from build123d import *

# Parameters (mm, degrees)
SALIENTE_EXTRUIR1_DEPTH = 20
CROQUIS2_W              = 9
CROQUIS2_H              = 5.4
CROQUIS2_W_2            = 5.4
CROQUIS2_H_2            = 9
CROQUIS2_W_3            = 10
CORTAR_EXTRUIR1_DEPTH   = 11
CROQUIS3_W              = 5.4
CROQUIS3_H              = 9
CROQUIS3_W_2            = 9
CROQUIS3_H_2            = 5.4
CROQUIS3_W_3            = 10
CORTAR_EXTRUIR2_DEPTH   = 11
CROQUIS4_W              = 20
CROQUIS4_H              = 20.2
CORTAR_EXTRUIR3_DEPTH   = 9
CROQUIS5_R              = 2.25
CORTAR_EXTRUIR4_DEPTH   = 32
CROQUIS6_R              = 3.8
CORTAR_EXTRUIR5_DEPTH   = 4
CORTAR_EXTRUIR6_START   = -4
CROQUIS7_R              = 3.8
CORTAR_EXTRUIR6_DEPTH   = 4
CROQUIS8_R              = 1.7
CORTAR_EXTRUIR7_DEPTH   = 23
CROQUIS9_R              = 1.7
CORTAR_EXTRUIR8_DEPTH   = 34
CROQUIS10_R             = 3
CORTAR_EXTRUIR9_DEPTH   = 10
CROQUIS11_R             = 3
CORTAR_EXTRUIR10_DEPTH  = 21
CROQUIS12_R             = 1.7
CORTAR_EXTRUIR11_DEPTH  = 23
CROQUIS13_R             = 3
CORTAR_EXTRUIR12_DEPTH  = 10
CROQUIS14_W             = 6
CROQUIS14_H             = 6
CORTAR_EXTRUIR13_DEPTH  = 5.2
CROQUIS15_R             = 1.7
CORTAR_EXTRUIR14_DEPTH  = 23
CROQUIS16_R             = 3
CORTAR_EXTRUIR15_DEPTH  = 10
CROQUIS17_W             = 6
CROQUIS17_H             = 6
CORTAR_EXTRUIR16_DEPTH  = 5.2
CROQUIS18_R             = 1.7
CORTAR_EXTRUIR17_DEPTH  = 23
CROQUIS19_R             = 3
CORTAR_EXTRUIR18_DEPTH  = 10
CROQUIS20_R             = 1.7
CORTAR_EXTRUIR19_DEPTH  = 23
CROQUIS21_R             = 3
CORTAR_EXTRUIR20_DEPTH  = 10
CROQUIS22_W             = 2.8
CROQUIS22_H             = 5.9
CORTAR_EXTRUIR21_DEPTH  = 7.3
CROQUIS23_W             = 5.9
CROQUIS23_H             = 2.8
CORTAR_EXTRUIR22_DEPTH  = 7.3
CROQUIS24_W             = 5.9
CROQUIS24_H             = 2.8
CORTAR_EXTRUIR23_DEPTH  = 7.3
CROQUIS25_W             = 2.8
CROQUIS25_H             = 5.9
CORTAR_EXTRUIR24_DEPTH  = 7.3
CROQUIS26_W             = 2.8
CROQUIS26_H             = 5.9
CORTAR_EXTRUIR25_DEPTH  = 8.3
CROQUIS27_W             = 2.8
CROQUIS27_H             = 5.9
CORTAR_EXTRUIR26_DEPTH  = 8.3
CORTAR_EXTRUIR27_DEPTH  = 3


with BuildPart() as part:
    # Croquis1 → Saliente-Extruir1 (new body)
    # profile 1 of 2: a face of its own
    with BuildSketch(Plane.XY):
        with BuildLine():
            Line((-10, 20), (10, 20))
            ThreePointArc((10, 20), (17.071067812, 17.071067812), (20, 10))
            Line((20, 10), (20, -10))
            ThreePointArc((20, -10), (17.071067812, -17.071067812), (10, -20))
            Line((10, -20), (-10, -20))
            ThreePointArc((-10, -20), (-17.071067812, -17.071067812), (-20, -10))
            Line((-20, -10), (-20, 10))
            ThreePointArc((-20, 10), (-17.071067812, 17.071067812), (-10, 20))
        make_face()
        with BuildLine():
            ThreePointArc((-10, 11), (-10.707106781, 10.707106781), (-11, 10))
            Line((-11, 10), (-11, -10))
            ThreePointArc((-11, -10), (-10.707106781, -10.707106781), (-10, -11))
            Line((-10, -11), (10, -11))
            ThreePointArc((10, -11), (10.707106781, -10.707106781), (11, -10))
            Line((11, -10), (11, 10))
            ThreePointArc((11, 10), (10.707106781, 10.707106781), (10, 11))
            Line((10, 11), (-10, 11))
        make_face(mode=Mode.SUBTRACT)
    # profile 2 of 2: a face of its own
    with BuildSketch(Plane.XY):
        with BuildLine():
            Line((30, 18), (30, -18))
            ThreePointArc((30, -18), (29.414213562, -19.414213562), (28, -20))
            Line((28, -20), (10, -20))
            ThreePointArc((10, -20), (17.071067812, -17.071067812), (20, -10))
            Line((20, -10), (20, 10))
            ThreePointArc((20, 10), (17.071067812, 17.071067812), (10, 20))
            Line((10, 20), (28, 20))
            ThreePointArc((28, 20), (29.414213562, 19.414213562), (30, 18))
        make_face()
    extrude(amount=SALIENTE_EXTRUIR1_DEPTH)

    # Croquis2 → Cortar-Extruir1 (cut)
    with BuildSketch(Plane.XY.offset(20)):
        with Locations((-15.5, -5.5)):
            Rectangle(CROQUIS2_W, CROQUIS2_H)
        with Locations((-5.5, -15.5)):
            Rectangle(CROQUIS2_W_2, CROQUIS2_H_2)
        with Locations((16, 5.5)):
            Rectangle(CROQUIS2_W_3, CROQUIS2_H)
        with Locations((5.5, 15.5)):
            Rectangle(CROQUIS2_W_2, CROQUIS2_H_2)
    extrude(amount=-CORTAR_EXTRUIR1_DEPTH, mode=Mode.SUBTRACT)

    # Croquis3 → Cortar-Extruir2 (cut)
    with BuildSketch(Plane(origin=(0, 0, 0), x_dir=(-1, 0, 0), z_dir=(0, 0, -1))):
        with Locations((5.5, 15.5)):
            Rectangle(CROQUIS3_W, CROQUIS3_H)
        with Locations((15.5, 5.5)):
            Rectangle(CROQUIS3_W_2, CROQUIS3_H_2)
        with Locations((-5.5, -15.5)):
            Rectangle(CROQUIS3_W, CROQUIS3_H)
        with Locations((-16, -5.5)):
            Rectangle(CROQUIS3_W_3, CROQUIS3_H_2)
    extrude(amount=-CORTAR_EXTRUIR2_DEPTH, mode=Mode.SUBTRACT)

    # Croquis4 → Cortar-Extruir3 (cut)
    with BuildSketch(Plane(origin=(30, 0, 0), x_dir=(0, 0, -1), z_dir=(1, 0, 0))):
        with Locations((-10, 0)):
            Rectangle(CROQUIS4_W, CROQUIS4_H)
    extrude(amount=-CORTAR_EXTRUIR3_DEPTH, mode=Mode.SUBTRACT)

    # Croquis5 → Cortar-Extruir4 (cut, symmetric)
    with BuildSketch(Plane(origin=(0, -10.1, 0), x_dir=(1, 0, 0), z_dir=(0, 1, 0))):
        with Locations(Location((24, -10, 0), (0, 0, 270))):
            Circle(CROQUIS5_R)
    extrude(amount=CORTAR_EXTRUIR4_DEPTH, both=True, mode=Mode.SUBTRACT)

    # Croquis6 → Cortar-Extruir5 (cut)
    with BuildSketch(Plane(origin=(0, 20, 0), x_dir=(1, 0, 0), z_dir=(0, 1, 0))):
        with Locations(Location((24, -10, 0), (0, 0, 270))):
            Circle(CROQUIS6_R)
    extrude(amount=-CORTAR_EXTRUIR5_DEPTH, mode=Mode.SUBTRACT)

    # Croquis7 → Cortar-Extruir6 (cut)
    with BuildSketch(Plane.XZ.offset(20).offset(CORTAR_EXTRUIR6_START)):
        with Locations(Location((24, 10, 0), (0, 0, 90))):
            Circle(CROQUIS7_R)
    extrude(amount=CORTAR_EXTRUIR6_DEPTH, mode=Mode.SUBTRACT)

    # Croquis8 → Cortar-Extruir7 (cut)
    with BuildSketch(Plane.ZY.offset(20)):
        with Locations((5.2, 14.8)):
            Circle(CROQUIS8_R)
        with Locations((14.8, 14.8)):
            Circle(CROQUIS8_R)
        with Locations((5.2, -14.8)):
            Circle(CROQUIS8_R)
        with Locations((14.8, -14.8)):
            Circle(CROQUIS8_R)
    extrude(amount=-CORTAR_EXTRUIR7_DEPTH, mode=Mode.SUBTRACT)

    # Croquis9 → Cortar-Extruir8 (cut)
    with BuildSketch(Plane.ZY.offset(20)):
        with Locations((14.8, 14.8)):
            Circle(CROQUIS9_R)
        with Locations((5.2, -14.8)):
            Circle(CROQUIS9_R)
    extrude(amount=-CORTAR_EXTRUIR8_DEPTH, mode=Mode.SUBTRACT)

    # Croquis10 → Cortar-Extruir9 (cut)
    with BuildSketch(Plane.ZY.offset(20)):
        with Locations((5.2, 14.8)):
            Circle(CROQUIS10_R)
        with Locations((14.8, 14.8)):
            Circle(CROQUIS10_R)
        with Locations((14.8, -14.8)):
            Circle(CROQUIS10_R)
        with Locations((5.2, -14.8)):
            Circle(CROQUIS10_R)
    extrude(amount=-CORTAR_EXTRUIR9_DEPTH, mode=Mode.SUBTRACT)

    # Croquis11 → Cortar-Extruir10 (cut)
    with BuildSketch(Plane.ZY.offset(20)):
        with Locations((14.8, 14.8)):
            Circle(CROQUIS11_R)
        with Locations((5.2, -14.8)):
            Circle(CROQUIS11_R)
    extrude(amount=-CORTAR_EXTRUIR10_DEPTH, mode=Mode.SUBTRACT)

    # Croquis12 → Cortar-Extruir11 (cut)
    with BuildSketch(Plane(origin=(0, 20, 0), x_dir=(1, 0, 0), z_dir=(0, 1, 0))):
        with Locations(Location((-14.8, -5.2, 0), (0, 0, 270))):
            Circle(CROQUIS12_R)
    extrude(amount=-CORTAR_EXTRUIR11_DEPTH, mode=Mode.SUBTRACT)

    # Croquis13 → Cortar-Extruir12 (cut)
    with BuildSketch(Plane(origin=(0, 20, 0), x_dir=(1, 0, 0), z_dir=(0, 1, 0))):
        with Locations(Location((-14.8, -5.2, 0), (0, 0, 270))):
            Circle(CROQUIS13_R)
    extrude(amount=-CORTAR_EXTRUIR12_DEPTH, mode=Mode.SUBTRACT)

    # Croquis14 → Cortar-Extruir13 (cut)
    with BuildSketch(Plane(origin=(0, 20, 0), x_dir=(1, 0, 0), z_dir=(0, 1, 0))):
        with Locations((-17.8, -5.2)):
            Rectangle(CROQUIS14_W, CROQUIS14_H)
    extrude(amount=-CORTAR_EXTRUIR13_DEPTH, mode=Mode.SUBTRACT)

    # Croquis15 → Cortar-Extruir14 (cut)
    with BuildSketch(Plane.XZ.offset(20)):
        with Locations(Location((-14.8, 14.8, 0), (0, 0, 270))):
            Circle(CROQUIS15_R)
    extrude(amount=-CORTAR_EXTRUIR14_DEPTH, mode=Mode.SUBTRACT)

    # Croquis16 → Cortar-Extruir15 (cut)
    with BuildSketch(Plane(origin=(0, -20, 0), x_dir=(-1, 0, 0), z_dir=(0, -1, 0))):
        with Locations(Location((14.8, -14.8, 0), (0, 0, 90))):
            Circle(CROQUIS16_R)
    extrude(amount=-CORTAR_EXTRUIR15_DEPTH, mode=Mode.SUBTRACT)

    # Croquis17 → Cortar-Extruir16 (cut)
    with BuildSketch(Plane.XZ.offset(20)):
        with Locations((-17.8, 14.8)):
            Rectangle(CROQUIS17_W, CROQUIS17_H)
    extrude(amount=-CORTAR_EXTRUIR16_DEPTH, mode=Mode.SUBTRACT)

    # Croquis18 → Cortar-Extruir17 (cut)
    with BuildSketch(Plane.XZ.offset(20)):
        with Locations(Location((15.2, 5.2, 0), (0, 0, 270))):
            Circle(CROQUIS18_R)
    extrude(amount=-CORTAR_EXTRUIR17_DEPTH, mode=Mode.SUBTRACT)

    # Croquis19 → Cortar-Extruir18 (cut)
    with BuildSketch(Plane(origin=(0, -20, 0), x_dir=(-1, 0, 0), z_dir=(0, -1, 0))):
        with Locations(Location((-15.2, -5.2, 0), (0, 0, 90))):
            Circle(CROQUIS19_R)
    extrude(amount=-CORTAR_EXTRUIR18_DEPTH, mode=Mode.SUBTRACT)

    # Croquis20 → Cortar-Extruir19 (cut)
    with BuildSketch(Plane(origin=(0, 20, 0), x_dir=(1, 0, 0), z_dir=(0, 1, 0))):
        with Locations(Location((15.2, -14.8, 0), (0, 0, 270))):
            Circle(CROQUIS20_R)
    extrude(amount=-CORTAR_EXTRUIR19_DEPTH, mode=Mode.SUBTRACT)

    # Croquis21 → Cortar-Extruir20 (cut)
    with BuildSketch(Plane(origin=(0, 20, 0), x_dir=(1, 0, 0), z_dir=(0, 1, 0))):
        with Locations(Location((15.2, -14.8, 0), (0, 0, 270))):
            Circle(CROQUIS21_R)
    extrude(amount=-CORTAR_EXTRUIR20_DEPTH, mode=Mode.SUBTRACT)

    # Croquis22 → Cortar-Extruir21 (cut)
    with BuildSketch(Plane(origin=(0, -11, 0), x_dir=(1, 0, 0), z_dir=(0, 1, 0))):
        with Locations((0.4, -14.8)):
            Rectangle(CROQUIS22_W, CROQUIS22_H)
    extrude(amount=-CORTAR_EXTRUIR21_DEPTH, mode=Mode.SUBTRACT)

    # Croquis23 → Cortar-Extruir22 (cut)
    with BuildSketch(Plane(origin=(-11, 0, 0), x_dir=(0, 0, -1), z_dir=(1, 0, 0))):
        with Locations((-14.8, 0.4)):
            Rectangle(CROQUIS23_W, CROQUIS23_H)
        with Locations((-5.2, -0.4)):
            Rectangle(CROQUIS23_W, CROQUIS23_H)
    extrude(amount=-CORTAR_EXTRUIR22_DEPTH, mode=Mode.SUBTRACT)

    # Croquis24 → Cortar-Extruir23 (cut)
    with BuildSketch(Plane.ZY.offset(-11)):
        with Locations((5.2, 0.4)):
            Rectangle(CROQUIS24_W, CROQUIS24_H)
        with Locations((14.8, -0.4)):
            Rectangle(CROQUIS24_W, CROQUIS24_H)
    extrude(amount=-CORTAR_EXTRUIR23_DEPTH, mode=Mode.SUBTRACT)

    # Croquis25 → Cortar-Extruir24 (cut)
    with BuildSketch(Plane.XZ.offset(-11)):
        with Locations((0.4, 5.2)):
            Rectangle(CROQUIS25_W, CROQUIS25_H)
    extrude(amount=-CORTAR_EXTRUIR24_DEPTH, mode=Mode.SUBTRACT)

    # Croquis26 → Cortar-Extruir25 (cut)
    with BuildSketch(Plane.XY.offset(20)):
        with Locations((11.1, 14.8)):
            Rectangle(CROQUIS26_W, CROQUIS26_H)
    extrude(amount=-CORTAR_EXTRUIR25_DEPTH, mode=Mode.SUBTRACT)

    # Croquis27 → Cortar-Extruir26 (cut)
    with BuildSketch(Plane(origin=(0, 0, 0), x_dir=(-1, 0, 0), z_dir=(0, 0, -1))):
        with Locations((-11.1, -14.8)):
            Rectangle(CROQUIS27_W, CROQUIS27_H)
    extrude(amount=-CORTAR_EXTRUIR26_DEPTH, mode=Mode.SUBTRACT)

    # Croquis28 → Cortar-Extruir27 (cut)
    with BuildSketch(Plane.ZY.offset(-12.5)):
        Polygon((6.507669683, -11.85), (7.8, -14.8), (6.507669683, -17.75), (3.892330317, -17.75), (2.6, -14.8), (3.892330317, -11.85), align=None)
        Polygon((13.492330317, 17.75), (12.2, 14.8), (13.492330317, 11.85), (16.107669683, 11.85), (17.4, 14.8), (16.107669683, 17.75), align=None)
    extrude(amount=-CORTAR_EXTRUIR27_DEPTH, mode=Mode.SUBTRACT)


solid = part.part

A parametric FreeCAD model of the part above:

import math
import FreeCAD as App
import Part
import Sketcher

doc = App.newDocument("Part")
body = doc.addObject("PartDesign::Body", "Body")

# Sketch on XY plane
sketch1 = body.newObject("Sketcher::SketchObject", "Sketch")
sketch1.AttachmentSupport = (doc.getObject("XY_Plane"), [""])
sketch1.MapMode = "FlatFace"
sketch1.addGeometry([
    Part.LineSegment(App.Vector(28, 20, 0), App.Vector(-10, 20, 0)),  # 0
    Part.ArcOfCircle(Part.Circle(App.Vector(-10, 10, 0), App.Vector(0, 0, 1), 10), math.radians(90), math.radians(180)),  # 1
    Part.LineSegment(App.Vector(-20, 10, 0), App.Vector(-20, -10, 0)),  # 2
    Part.ArcOfCircle(Part.Circle(App.Vector(-10, -10, 0), App.Vector(0, 0, 1), 10), math.radians(180), math.radians(270)),  # 3
    Part.LineSegment(App.Vector(-10, -20, 0), App.Vector(28, -20, 0)),  # 4
    Part.ArcOfCircle(Part.Circle(App.Vector(28, -18, 0), App.Vector(0, 0, 1), 2), math.radians(-90), math.radians(0)),  # 5
    Part.LineSegment(App.Vector(30, -18, 0), App.Vector(30, 18, 0)),  # 6
    Part.ArcOfCircle(Part.Circle(App.Vector(28, 18, 0), App.Vector(0, 0, 1), 2), math.radians(0), math.radians(90)),  # 7
    Part.LineSegment(App.Vector(-10, 11, 0), App.Vector(10, 11, 0)),  # 8
    Part.ArcOfCircle(Part.Circle(App.Vector(10, 10, 0), App.Vector(0, 0, 1), 1), math.radians(0), math.radians(90)),  # 9
    Part.LineSegment(App.Vector(11, 10, 0), App.Vector(11, -10, 0)),  # 10
    Part.ArcOfCircle(Part.Circle(App.Vector(10, -10, 0), App.Vector(0, 0, 1), 1), math.radians(-90), math.radians(0)),  # 11
    Part.LineSegment(App.Vector(10, -11, 0), App.Vector(-10, -11, 0)),  # 12
    Part.ArcOfCircle(Part.Circle(App.Vector(-10, -10, 0), App.Vector(0, 0, 1), 1), math.radians(-180), math.radians(-90)),  # 13
    Part.LineSegment(App.Vector(-11, -10, 0), App.Vector(-11, 10, 0)),  # 14
    Part.ArcOfCircle(Part.Circle(App.Vector(-10, 10, 0), App.Vector(0, 0, 1), 1), math.radians(90), math.radians(180)),  # 15
], False)
sketch1.addConstraint([
    Sketcher.Constraint("Tangent", 0, 2, 1, 1),
    Sketcher.Constraint("Tangent", 1, 2, 2, 1),
    Sketcher.Constraint("Tangent", 2, 2, 3, 1),
    Sketcher.Constraint("Tangent", 3, 2, 4, 1),
    Sketcher.Constraint("Tangent", 4, 2, 5, 1),
    Sketcher.Constraint("Tangent", 5, 2, 6, 1),
    Sketcher.Constraint("Tangent", 6, 2, 7, 1),
    Sketcher.Constraint("Tangent", 7, 2, 0, 1),
    Sketcher.Constraint("Tangent", 8, 2, 9, 2),
    Sketcher.Constraint("Tangent", 9, 1, 10, 1),
    Sketcher.Constraint("Tangent", 10, 2, 11, 2),
    Sketcher.Constraint("Tangent", 11, 1, 12, 1),
    Sketcher.Constraint("Tangent", 12, 2, 13, 2),
    Sketcher.Constraint("Tangent", 13, 1, 14, 1),
    Sketcher.Constraint("Tangent", 14, 2, 15, 2),
    Sketcher.Constraint("Tangent", 15, 1, 8, 1),
    Sketcher.Constraint("Horizontal", 0),
    Sketcher.Constraint("Vertical", 2),
    Sketcher.Constraint("Horizontal", 4),
    Sketcher.Constraint("Vertical", 6),
    Sketcher.Constraint("Horizontal", 8),
    Sketcher.Constraint("Vertical", 10),
    Sketcher.Constraint("Horizontal", 12),
    Sketcher.Constraint("Vertical", 14),
    Sketcher.Constraint("Coincident", 13, 3, 3, 3),
    Sketcher.Constraint("Coincident", 15, 3, 1, 3),
    Sketcher.Constraint("Equal", 1, 3),
    Sketcher.Constraint("Equal", 5, 7),
    Sketcher.Constraint("Equal", 9, 11),
    Sketcher.Constraint("Equal", 11, 13),
    Sketcher.Constraint("Symmetric", 3, 3, 9, 3, -1, 1),
    Sketcher.Constraint("Equal", 12, 2),
    Sketcher.Constraint("Radius", 1, 10.0),
    Sketcher.Constraint("Radius", 5, 2.0),
    Sketcher.Constraint("Radius", 9, 1.0),
    Sketcher.Constraint("DistanceX", 0, 2, 0, 1, 38.0),
    Sketcher.Constraint("DistanceX", 8, 1, 8, 2, 20.0),
])
pad1 = body.newObject("PartDesign::Pad", "Pad")
pad1.Profile = sketch1
pad1.Length = 20

# Sketch on XY plane
sketch2 = body.newObject("Sketcher::SketchObject", "Sketch001")
sketch2.AttachmentSupport = (doc.getObject("XY_Plane"), [""])
sketch2.MapMode = "FlatFace"
sketch2.AttachmentOffset = App.Placement(App.Vector(0, 0, 20), App.Rotation())
sketch2.addGeometry([
    Part.LineSegment(App.Vector(-20, -3, 0), App.Vector(-20, -8, 0)),  # 0
    Part.LineSegment(App.Vector(-20, -8, 0), App.Vector(-11, -8, 0)),  # 1
    Part.LineSegment(App.Vector(-11, -8, 0), App.Vector(-11, -3, 0)),  # 2
    Part.LineSegment(App.Vector(-11, -3, 0), App.Vector(-20, -3, 0)),  # 3
    Part.LineSegment(App.Vector(-8, -11, 0), App.Vector(-8, -20, 0)),  # 4
    Part.LineSegment(App.Vector(-8, -20, 0), App.Vector(-3, -20, 0)),  # 5
    Part.LineSegment(App.Vector(-3, -20, 0), App.Vector(-3, -11, 0)),  # 6
    Part.LineSegment(App.Vector(-3, -11, 0), App.Vector(-8, -11, 0)),  # 7
    Part.LineSegment(App.Vector(11, 8, 0), App.Vector(11, 3, 0)),  # 8
    Part.LineSegment(App.Vector(11, 3, 0), App.Vector(21, 3, 0)),  # 9
    Part.LineSegment(App.Vector(21, 3, 0), App.Vector(21, 8, 0)),  # 10
    Part.LineSegment(App.Vector(21, 8, 0), App.Vector(11, 8, 0)),  # 11
    Part.LineSegment(App.Vector(3, 20, 0), App.Vector(3, 11, 0)),  # 12
    Part.LineSegment(App.Vector(3, 11, 0), App.Vector(8, 11, 0)),  # 13
    Part.LineSegment(App.Vector(8, 11, 0), App.Vector(8, 20, 0)),  # 14
    Part.LineSegment(App.Vector(8, 20, 0), App.Vector(3, 20, 0)),  # 15
], False)
sketch2.addConstraint([
    Sketcher.Constraint("Coincident", 0, 2, 1, 1),
    Sketcher.Constraint("Coincident", 1, 2, 2, 1),
    Sketcher.Constraint("Coincident", 2, 2, 3, 1),
    Sketcher.Constraint("Coincident", 3, 2, 0, 1),
    Sketcher.Constraint("Coincident", 4, 2, 5, 1),
    Sketcher.Constraint("Coincident", 5, 2, 6, 1),
    Sketcher.Constraint("Coincident", 6, 2, 7, 1),
    Sketcher.Constraint("Coincident", 7, 2, 4, 1),
    Sketcher.Constraint("Coincident", 8, 2, 9, 1),
    Sketcher.Constraint("Coincident", 9, 2, 10, 1),
    Sketcher.Constraint("Coincident", 10, 2, 11, 1),
    Sketcher.Constraint("Coincident", 11, 2, 8, 1),
    Sketcher.Constraint("Coincident", 12, 2, 13, 1),
    Sketcher.Constraint("Coincident", 13, 2, 14, 1),
    Sketcher.Constraint("Coincident", 14, 2, 15, 1),
    Sketcher.Constraint("Coincident", 15, 2, 12, 1),
    Sketcher.Constraint("Vertical", 0),
    Sketcher.Constraint("Horizontal", 1),
    Sketcher.Constraint("Vertical", 2),
    Sketcher.Constraint("Horizontal", 3),
    Sketcher.Constraint("Vertical", 4),
    Sketcher.Constraint("Horizontal", 5),
    Sketcher.Constraint("Vertical", 6),
    Sketcher.Constraint("Horizontal", 7),
    Sketcher.Constraint("Vertical", 8),
    Sketcher.Constraint("Horizontal", 9),
    Sketcher.Constraint("Vertical", 10),
    Sketcher.Constraint("Horizontal", 11),
    Sketcher.Constraint("Vertical", 12),
    Sketcher.Constraint("Horizontal", 13),
    Sketcher.Constraint("Vertical", 14),
    Sketcher.Constraint("Horizontal", 15),
    Sketcher.Constraint("Symmetric", 2, 2, 8, 2, -1, 1),
    Sketcher.Constraint("Symmetric", 6, 2, 12, 2, -1, 1),
    Sketcher.Constraint("Symmetric", 4, 2, 14, 2, -1, 1),
    Sketcher.Constraint("Equal", 15, 0),
    Sketcher.Constraint("Equal", 3, 4),
    Sketcher.Constraint("Equal", 2, 8),
    Sketcher.Constraint("DistanceX", 1, 1, 1, 2, 9.0),
    Sketcher.Constraint("DistanceX", 9, 1, 9, 2, 10.0),
    Sketcher.Constraint("DistanceX", 5, 1, 5, 2, 5.4),
    Sketcher.Constraint("DistanceX", 0, 2, -1, 1, 20.0),
    Sketcher.Constraint("DistanceY", 4, 2, -1, 1, 20.0),
    Sketcher.Constraint("DistanceY", 1, 2, 8, 2, 11.0),
    Sketcher.Constraint("DistanceX", 4, 2, -1, 1, 8.2),
])
pocket1 = body.newObject("PartDesign::Pocket", "Pocket")
pocket1.Profile = sketch2
pocket1.Length = 11

# Sketch on XY plane
sketch3 = body.newObject("Sketcher::SketchObject", "Sketch002")
sketch3.AttachmentSupport = (doc.getObject("XY_Plane"), [""])
sketch3.MapMode = "FlatFace"
sketch3.addGeometry([
    Part.LineSegment(App.Vector(-3, 20, 0), App.Vector(-3, 11, 0)),  # 0
    Part.LineSegment(App.Vector(-3, 11, 0), App.Vector(-8, 11, 0)),  # 1
    Part.LineSegment(App.Vector(-8, 11, 0), App.Vector(-8, 20, 0)),  # 2
    Part.LineSegment(App.Vector(-8, 20, 0), App.Vector(-3, 20, 0)),  # 3
    Part.LineSegment(App.Vector(-11, 8, 0), App.Vector(-11, 3, 0)),  # 4
    Part.LineSegment(App.Vector(-11, 3, 0), App.Vector(-20, 3, 0)),  # 5
    Part.LineSegment(App.Vector(-20, 3, 0), App.Vector(-20, 8, 0)),  # 6
    Part.LineSegment(App.Vector(-20, 8, 0), App.Vector(-11, 8, 0)),  # 7
    Part.LineSegment(App.Vector(8, -11, 0), App.Vector(8, -20, 0)),  # 8
    Part.LineSegment(App.Vector(8, -20, 0), App.Vector(3, -20, 0)),  # 9
    Part.LineSegment(App.Vector(3, -20, 0), App.Vector(3, -11, 0)),  # 10
    Part.LineSegment(App.Vector(3, -11, 0), App.Vector(8, -11, 0)),  # 11
    Part.LineSegment(App.Vector(21, -3, 0), App.Vector(21, -8, 0)),  # 12
    Part.LineSegment(App.Vector(21, -8, 0), App.Vector(11, -8, 0)),  # 13
    Part.LineSegment(App.Vector(11, -8, 0), App.Vector(11, -3, 0)),  # 14
    Part.LineSegment(App.Vector(11, -3, 0), App.Vector(21, -3, 0)),  # 15
], False)
sketch3.addConstraint([
    Sketcher.Constraint("Coincident", 0, 2, 1, 1),
    Sketcher.Constraint("Coincident", 1, 2, 2, 1),
    Sketcher.Constraint("Coincident", 2, 2, 3, 1),
    Sketcher.Constraint("Coincident", 3, 2, 0, 1),
    Sketcher.Constraint("Coincident", 4, 2, 5, 1),
    Sketcher.Constraint("Coincident", 5, 2, 6, 1),
    Sketcher.Constraint("Coincident", 6, 2, 7, 1),
    Sketcher.Constraint("Coincident", 7, 2, 4, 1),
    Sketcher.Constraint("Coincident", 8, 2, 9, 1),
    Sketcher.Constraint("Coincident", 9, 2, 10, 1),
    Sketcher.Constraint("Coincident", 10, 2, 11, 1),
    Sketcher.Constraint("Coincident", 11, 2, 8, 1),
    Sketcher.Constraint("Coincident", 12, 2, 13, 1),
    Sketcher.Constraint("Coincident", 13, 2, 14, 1),
    Sketcher.Constraint("Coincident", 14, 2, 15, 1),
    Sketcher.Constraint("Coincident", 15, 2, 12, 1),
    Sketcher.Constraint("Vertical", 0),
    Sketcher.Constraint("Horizontal", 1),
    Sketcher.Constraint("Vertical", 2),
    Sketcher.Constraint("Horizontal", 3),
    Sketcher.Constraint("Vertical", 4),
    Sketcher.Constraint("Horizontal", 5),
    Sketcher.Constraint("Vertical", 6),
    Sketcher.Constraint("Horizontal", 7),
    Sketcher.Constraint("Vertical", 8),
    Sketcher.Constraint("Horizontal", 9),
    Sketcher.Constraint("Vertical", 10),
    Sketcher.Constraint("Horizontal", 11),
    Sketcher.Constraint("Vertical", 12),
    Sketcher.Constraint("Horizontal", 13),
    Sketcher.Constraint("Vertical", 14),
    Sketcher.Constraint("Horizontal", 15),
    Sketcher.Constraint("Symmetric", 2, 2, 8, 2, -1, 1),
    Sketcher.Constraint("Symmetric", 0, 2, 10, 2, -1, 1),
    Sketcher.Constraint("Symmetric", 7, 2, 13, 2, -1, 1),
    Sketcher.Constraint("Equal", 7, 0),
    Sketcher.Constraint("Equal", 11, 4),
    Sketcher.Constraint("Equal", 6, 12),
    Sketcher.Constraint("DistanceX", 5, 2, 5, 1, 9.0),
    Sketcher.Constraint("DistanceX", 13, 2, 13, 1, 10.0),
    Sketcher.Constraint("DistanceX", 1, 2, 1, 1, 5.4),
    Sketcher.Constraint("DistanceY", -1, 1, 0, 2, 11.0),
    Sketcher.Constraint("DistanceX", 4, 2, -1, 1, 11.0),
    Sketcher.Constraint("DistanceX", 0, 2, 8, 2, 11.0),
    Sketcher.Constraint("DistanceY", -1, 1, 4, 2, 2.8),
])
pocket2 = body.newObject("PartDesign::Pocket", "Pocket001")
pocket2.Profile = sketch3
pocket2.Length = 11
pocket2.Reversed = True

# Sketch on YZ plane
sketch4 = body.newObject("Sketcher::SketchObject", "Sketch003")
sketch4.AttachmentSupport = (doc.getObject("YZ_Plane"), [""])
sketch4.MapMode = "FlatFace"
sketch4.AttachmentOffset = App.Placement(App.Vector(0, 0, 30), App.Rotation())
sketch4.addGeometry([
    Part.LineSegment(App.Vector(10, 20, 0), App.Vector(-10, 20, 0)),
    Part.LineSegment(App.Vector(-10, 20, 0), App.Vector(-10, 0, 0)),
    Part.LineSegment(App.Vector(-10, 0, 0), App.Vector(10, 0, 0)),
    Part.LineSegment(App.Vector(10, 0, 0), App.Vector(10, 20, 0)),
], False)
sketch4.addConstraint([
    Sketcher.Constraint("Coincident", 0, 2, 1, 1),
    Sketcher.Constraint("Coincident", 1, 2, 2, 1),
    Sketcher.Constraint("Coincident", 2, 2, 3, 1),
    Sketcher.Constraint("Coincident", 3, 2, 0, 1),
    Sketcher.Constraint("Horizontal", 0),
    Sketcher.Constraint("Vertical", 1),
    Sketcher.Constraint("Horizontal", 2),
    Sketcher.Constraint("Vertical", 3),
    Sketcher.Constraint("Symmetric", 1, 2, 2, 2, -1, 1),
    Sketcher.Constraint("DistanceY", 1, 2, 1, 1, 20.0),
    Sketcher.Constraint("DistanceX", 0, 2, 0, 1, 20.2),
])
pocket3 = body.newObject("PartDesign::Pocket", "Pocket002")
pocket3.Profile = sketch4
pocket3.Length = 9

# Sketch on XZ plane
sketch5 = body.newObject("Sketcher::SketchObject", "Sketch004")
sketch5.AttachmentSupport = (doc.getObject("XZ_Plane"), [""])
sketch5.MapMode = "FlatFace"
sketch5.AttachmentOffset = App.Placement(App.Vector(0, 0, 10.1), App.Rotation())
sketch5.addGeometry(Part.Circle(App.Vector(24, 10, 0), App.Vector(0, 0, 1), 2.2), False)
sketch5.addConstraint([
    Sketcher.Constraint("Diameter", 0, 4.5),
    Sketcher.Constraint("DistanceX", -1, 1, 0, 3, 24.0),
    Sketcher.Constraint("DistanceY", -1, 1, 0, 3, 10.0),
])
pocket4 = body.newObject("PartDesign::Pocket", "Pocket003")
pocket4.Profile = sketch5
pocket4.Length = 64
pocket4.Midplane = True

# Sketch on XZ plane
sketch6 = body.newObject("Sketcher::SketchObject", "Sketch005")
sketch6.AttachmentSupport = (doc.getObject("XZ_Plane"), [""])
sketch6.MapMode = "FlatFace"
sketch6.AttachmentOffset = App.Placement(App.Vector(0, 0, -20), App.Rotation())
sketch6.addGeometry(Part.Circle(App.Vector(24, 10, 0), App.Vector(0, 0, 1), 3.8), False)
sketch6.addConstraint([
    Sketcher.Constraint("Diameter", 0, 7.6),
    Sketcher.Constraint("DistanceX", -1, 1, 0, 3, 24.0),
    Sketcher.Constraint("DistanceY", -1, 1, 0, 3, 10.0),
])
pocket5 = body.newObject("PartDesign::Pocket", "Pocket004")
pocket5.Profile = sketch6
pocket5.Length = 4
pocket5.Reversed = True

# Sketch on XZ plane
sketch7 = body.newObject("Sketcher::SketchObject", "Sketch006")
sketch7.AttachmentSupport = (doc.getObject("XZ_Plane"), [""])
sketch7.MapMode = "FlatFace"
sketch7.AttachmentOffset = App.Placement(App.Vector(0, 0, 16), App.Rotation())
sketch7.addGeometry(Part.Circle(App.Vector(24, 10, 0), App.Vector(0, 0, 1), 3.8), False)
sketch7.addConstraint([
    Sketcher.Constraint("Diameter", 0, 7.6),
    Sketcher.Constraint("DistanceX", -1, 1, 0, 3, 24.0),
    Sketcher.Constraint("DistanceY", -1, 1, 0, 3, 10.0),
])
pocket6 = body.newObject("PartDesign::Pocket", "Pocket005")
pocket6.Profile = sketch7
pocket6.Length = 4
pocket6.Reversed = True

# Sketch on YZ plane
sketch8 = body.newObject("Sketcher::SketchObject", "Sketch007")
sketch8.AttachmentSupport = (doc.getObject("YZ_Plane"), [""])
sketch8.MapMode = "FlatFace"
sketch8.AttachmentOffset = App.Placement(App.Vector(0, 0, -20), App.Rotation())
sketch8.addGeometry([
    Part.Circle(App.Vector(14.8, 5.2, 0), App.Vector(0, 0, 1), 1.7),
    Part.Circle(App.Vector(14.8, 14.8, 0), App.Vector(0, 0, 1), 1.7),
    Part.Circle(App.Vector(-14.8, 5.2, 0), App.Vector(0, 0, 1), 1.7),
    Part.Circle(App.Vector(-14.8, 14.8, 0), App.Vector(0, 0, 1), 1.7),
], False)
sketch8.addConstraint([
    Sketcher.Constraint("Equal", 0, 1),
    Sketcher.Constraint("Equal", 1, 2),
    Sketcher.Constraint("Equal", 2, 3),
    Sketcher.Constraint("Symmetric", 0, 3, 2, 3, -2),
    Sketcher.Constraint("Symmetric", 1, 3, 3, 3, -2),
    Sketcher.Constraint("Vertical", 0, 3, 1, 3),
    Sketcher.Constraint("Diameter", 0, 3.4),
    Sketcher.Constraint("DistanceX", -1, 1, 0, 3, 14.8),
    Sketcher.Constraint("DistanceY", -1, 1, 0, 3, 5.2),
    Sketcher.Constraint("DistanceY", -1, 1, 1, 3, 14.8),
])
pocket7 = body.newObject("PartDesign::Pocket", "Pocket006")
pocket7.Profile = sketch8
pocket7.Length = 23
pocket7.Reversed = True

# Sketch on YZ plane
sketch9 = body.newObject("Sketcher::SketchObject", "Sketch008")
sketch9.AttachmentSupport = (doc.getObject("YZ_Plane"), [""])
sketch9.MapMode = "FlatFace"
sketch9.AttachmentOffset = App.Placement(App.Vector(0, 0, -20), App.Rotation())
sketch9.addGeometry([
    Part.Circle(App.Vector(14.8, 14.8, 0), App.Vector(0, 0, 1), 1.7),
    Part.Circle(App.Vector(-14.8, 5.2, 0), App.Vector(0, 0, 1), 1.7),
], False)
sketch9.addConstraint([
    Sketcher.Constraint("Equal", 0, 1),
    Sketcher.Constraint("Diameter", 0, 3.4),
    Sketcher.Constraint("DistanceX", -1, 1, 0, 3, 14.8),
    Sketcher.Constraint("DistanceY", -1, 1, 0, 3, 14.8),
    Sketcher.Constraint("DistanceX", 1, 3, -1, 1, 14.8),
    Sketcher.Constraint("DistanceY", -1, 1, 1, 3, 5.2),
])
pocket8 = body.newObject("PartDesign::Pocket", "Pocket007")
pocket8.Profile = sketch9
pocket8.Length = 34
pocket8.Reversed = True

# Sketch on YZ plane
sketch10 = body.newObject("Sketcher::SketchObject", "Sketch009")
sketch10.AttachmentSupport = (doc.getObject("YZ_Plane"), [""])
sketch10.MapMode = "FlatFace"
sketch10.AttachmentOffset = App.Placement(App.Vector(0, 0, -20), App.Rotation())
sketch10.addGeometry([
    Part.Circle(App.Vector(14.8, 5.2, 0), App.Vector(0, 0, 1), 3),
    Part.Circle(App.Vector(14.8, 14.8, 0), App.Vector(0, 0, 1), 3),
    Part.Circle(App.Vector(-14.8, 14.8, 0), App.Vector(0, 0, 1), 3),
    Part.Circle(App.Vector(-14.8, 5.2, 0), App.Vector(0, 0, 1), 3),
], False)
sketch10.addConstraint([
    Sketcher.Constraint("Equal", 0, 1),
    Sketcher.Constraint("Equal", 1, 2),
    Sketcher.Constraint("Equal", 2, 3),
    Sketcher.Constraint("Symmetric", 1, 3, 2, 3, -2),
    Sketcher.Constraint("Symmetric", 0, 3, 3, 3, -2),
    Sketcher.Constraint("Vertical", 0, 3, 1, 3),
    Sketcher.Constraint("Diameter", 0, 6.0),
    Sketcher.Constraint("DistanceX", -1, 1, 0, 3, 14.8),
    Sketcher.Constraint("DistanceY", -1, 1, 0, 3, 5.2),
    Sketcher.Constraint("DistanceY", -1, 1, 1, 3, 14.8),
])
pocket9 = body.newObject("PartDesign::Pocket", "Pocket008")
pocket9.Profile = sketch10
pocket9.Length = 10
pocket9.Reversed = True

# Sketch on YZ plane
sketch11 = body.newObject("Sketcher::SketchObject", "Sketch010")
sketch11.AttachmentSupport = (doc.getObject("YZ_Plane"), [""])
sketch11.MapMode = "FlatFace"
sketch11.AttachmentOffset = App.Placement(App.Vector(0, 0, -20), App.Rotation())
sketch11.addGeometry([
    Part.Circle(App.Vector(14.8, 14.8, 0), App.Vector(0, 0, 1), 3),
    Part.Circle(App.Vector(-14.8, 5.2, 0), App.Vector(0, 0, 1), 3),
], False)
sketch11.addConstraint([
    Sketcher.Constraint("Equal", 0, 1),
    Sketcher.Constraint("Diameter", 0, 6.0),
    Sketcher.Constraint("DistanceX", -1, 1, 0, 3, 14.8),
    Sketcher.Constraint("DistanceY", -1, 1, 0, 3, 14.8),
    Sketcher.Constraint("DistanceX", 1, 3, -1, 1, 14.8),
    Sketcher.Constraint("DistanceY", -1, 1, 1, 3, 5.2),
])
pocket10 = body.newObject("PartDesign::Pocket", "Pocket009")
pocket10.Profile = sketch11
pocket10.Length = 21
pocket10.Reversed = True

# Sketch on XZ plane
sketch12 = body.newObject("Sketcher::SketchObject", "Sketch011")
sketch12.AttachmentSupport = (doc.getObject("XZ_Plane"), [""])
sketch12.MapMode = "FlatFace"
sketch12.AttachmentOffset = App.Placement(App.Vector(0, 0, -20), App.Rotation())
sketch12.addGeometry(Part.Circle(App.Vector(-14.8, 5.2, 0), App.Vector(0, 0, 1), 1.7), False)
sketch12.addConstraint([
    Sketcher.Constraint("Diameter", 0, 3.4),
    Sketcher.Constraint("DistanceX", 0, 3, -1, 1, 14.8),
    Sketcher.Constraint("DistanceY", -1, 1, 0, 3, 5.2),
])
pocket11 = body.newObject("PartDesign::Pocket", "Pocket010")
pocket11.Profile = sketch12
pocket11.Length = 23
pocket11.Reversed = True

# Sketch on XZ plane
sketch13 = body.newObject("Sketcher::SketchObject", "Sketch012")
sketch13.AttachmentSupport = (doc.getObject("XZ_Plane"), [""])
sketch13.MapMode = "FlatFace"
sketch13.AttachmentOffset = App.Placement(App.Vector(0, 0, -20), App.Rotation())
sketch13.addGeometry(Part.Circle(App.Vector(-14.8, 5.2, 0), App.Vector(0, 0, 1), 3), False)
sketch13.addConstraint([
    Sketcher.Constraint("Diameter", 0, 6.0),
    Sketcher.Constraint("DistanceX", 0, 3, -1, 1, 14.8),
    Sketcher.Constraint("DistanceY", -1, 1, 0, 3, 5.2),
])
pocket12 = body.newObject("PartDesign::Pocket", "Pocket011")
pocket12.Profile = sketch13
pocket12.Length = 10
pocket12.Reversed = True

# Sketch on XZ plane
sketch14 = body.newObject("Sketcher::SketchObject", "Sketch013")
sketch14.AttachmentSupport = (doc.getObject("XZ_Plane"), [""])
sketch14.MapMode = "FlatFace"
sketch14.AttachmentOffset = App.Placement(App.Vector(0, 0, -20), App.Rotation())
sketch14.addGeometry([
    Part.LineSegment(App.Vector(-21, 2, 0), App.Vector(-21, 8, 0)),
    Part.LineSegment(App.Vector(-21, 8, 0), App.Vector(-15, 8, 0)),
    Part.LineSegment(App.Vector(-15, 8, 0), App.Vector(-15, 2, 0)),
    Part.LineSegment(App.Vector(-15, 2, 0), App.Vector(-21, 2, 0)),
], False)
sketch14.addConstraint([
    Sketcher.Constraint("Coincident", 0, 2, 1, 1),
    Sketcher.Constraint("Coincident", 1, 2, 2, 1),
    Sketcher.Constraint("Coincident", 2, 2, 3, 1),
    Sketcher.Constraint("Coincident", 3, 2, 0, 1),
    Sketcher.Constraint("Vertical", 0),
    Sketcher.Constraint("Horizontal", 1),
    Sketcher.Constraint("Vertical", 2),
    Sketcher.Constraint("Horizontal", 3),
    Sketcher.Constraint("Equal", 3, 0),
    Sketcher.Constraint("DistanceX", 1, 1, 1, 2, 6.0),
    Sketcher.Constraint("DistanceX", 0, 2, -1, 1, 20.8),
    Sketcher.Constraint("DistanceY", -1, 1, 0, 2, 8.2),
])
pocket13 = body.newObject("PartDesign::Pocket", "Pocket012")
pocket13.Profile = sketch14
pocket13.Length = 5.2
pocket13.Reversed = True

# Sketch on XZ plane
sketch15 = body.newObject("Sketcher::SketchObject", "Sketch014")
sketch15.AttachmentSupport = (doc.getObject("XZ_Plane"), [""])
sketch15.MapMode = "FlatFace"
sketch15.AttachmentOffset = App.Placement(App.Vector(0, 0, 20), App.Rotation())
sketch15.addGeometry(Part.Circle(App.Vector(-14.8, 14.8, 0), App.Vector(0, 0, 1), 1.7), False)
sketch15.addConstraint([
    Sketcher.Constraint("Diameter", 0, 3.4),
    Sketcher.Constraint("DistanceX", 0, 3, -1, 1, 14.8),
    Sketcher.Constraint("DistanceY", -1, 1, 0, 3, 14.8),
])
pocket14 = body.newObject("PartDesign::Pocket", "Pocket013")
pocket14.Profile = sketch15
pocket14.Length = 23

# Sketch on XZ plane
sketch16 = body.newObject("Sketcher::SketchObject", "Sketch015")
sketch16.AttachmentSupport = (doc.getObject("XZ_Plane"), [""])
sketch16.MapMode = "FlatFace"
sketch16.AttachmentOffset = App.Placement(App.Vector(0, 0, 20), App.Rotation())
sketch16.addGeometry(Part.Circle(App.Vector(-14.8, 14.8, 0), App.Vector(0, 0, 1), 3), False)
sketch16.addConstraint([
    Sketcher.Constraint("Diameter", 0, 6.0),
    Sketcher.Constraint("DistanceX", 0, 3, -1, 1, 14.8),
    Sketcher.Constraint("DistanceY", -1, 1, 0, 3, 14.8),
])
pocket15 = body.newObject("PartDesign::Pocket", "Pocket014")
pocket15.Profile = sketch16
pocket15.Length = 10

# Sketch on XZ plane
sketch17 = body.newObject("Sketcher::SketchObject", "Sketch016")
sketch17.AttachmentSupport = (doc.getObject("XZ_Plane"), [""])
sketch17.MapMode = "FlatFace"
sketch17.AttachmentOffset = App.Placement(App.Vector(0, 0, 20), App.Rotation())
sketch17.addGeometry([
    Part.LineSegment(App.Vector(-21, 18, 0), App.Vector(-21, 12, 0)),
    Part.LineSegment(App.Vector(-21, 12, 0), App.Vector(-15, 12, 0)),
    Part.LineSegment(App.Vector(-15, 12, 0), App.Vector(-15, 18, 0)),
    Part.LineSegment(App.Vector(-15, 18, 0), App.Vector(-21, 18, 0)),
], False)
sketch17.addConstraint([
    Sketcher.Constraint("Coincident", 0, 2, 1, 1),
    Sketcher.Constraint("Coincident", 1, 2, 2, 1),
    Sketcher.Constraint("Coincident", 2, 2, 3, 1),
    Sketcher.Constraint("Coincident", 3, 2, 0, 1),
    Sketcher.Constraint("Vertical", 0),
    Sketcher.Constraint("Horizontal", 1),
    Sketcher.Constraint("Vertical", 2),
    Sketcher.Constraint("Horizontal", 3),
    Sketcher.Constraint("Equal", 3, 0),
    Sketcher.Constraint("DistanceX", 1, 1, 1, 2, 6.0),
    Sketcher.Constraint("DistanceX", 0, 2, -1, 1, 20.8),
    Sketcher.Constraint("DistanceY", -1, 1, 0, 2, 11.8),
])
pocket16 = body.newObject("PartDesign::Pocket", "Pocket015")
pocket16.Profile = sketch17
pocket16.Length = 5.2

# Sketch on XZ plane
sketch18 = body.newObject("Sketcher::SketchObject", "Sketch017")
sketch18.AttachmentSupport = (doc.getObject("XZ_Plane"), [""])
sketch18.MapMode = "FlatFace"
sketch18.AttachmentOffset = App.Placement(App.Vector(0, 0, 20), App.Rotation())
sketch18.addGeometry(Part.Circle(App.Vector(15.2, 5.2, 0), App.Vector(0, 0, 1), 1.7), False)
sketch18.addConstraint([
    Sketcher.Constraint("Diameter", 0, 3.4),
    Sketcher.Constraint("DistanceX", -1, 1, 0, 3, 15.2),
    Sketcher.Constraint("DistanceY", -1, 1, 0, 3, 5.2),
])
pocket17 = body.newObject("PartDesign::Pocket", "Pocket016")
pocket17.Profile = sketch18
pocket17.Length = 23

# Sketch on XZ plane
sketch19 = body.newObject("Sketcher::SketchObject", "Sketch018")
sketch19.AttachmentSupport = (doc.getObject("XZ_Plane"), [""])
sketch19.MapMode = "FlatFace"
sketch19.AttachmentOffset = App.Placement(App.Vector(0, 0, 20), App.Rotation())
sketch19.addGeometry(Part.Circle(App.Vector(15.2, 5.2, 0), App.Vector(0, 0, 1), 3), False)
sketch19.addConstraint([
    Sketcher.Constraint("Diameter", 0, 6.0),
    Sketcher.Constraint("DistanceX", -1, 1, 0, 3, 15.2),
    Sketcher.Constraint("DistanceY", -1, 1, 0, 3, 5.2),
])
pocket18 = body.newObject("PartDesign::Pocket", "Pocket017")
pocket18.Profile = sketch19
pocket18.Length = 10

# Sketch on XZ plane
sketch20 = body.newObject("Sketcher::SketchObject", "Sketch019")
sketch20.AttachmentSupport = (doc.getObject("XZ_Plane"), [""])
sketch20.MapMode = "FlatFace"
sketch20.AttachmentOffset = App.Placement(App.Vector(0, 0, -20), App.Rotation())
sketch20.addGeometry(Part.Circle(App.Vector(15.2, 14.8, 0), App.Vector(0, 0, 1), 1.7), False)
sketch20.addConstraint([
    Sketcher.Constraint("Diameter", 0, 3.4),
    Sketcher.Constraint("DistanceX", -1, 1, 0, 3, 15.2),
    Sketcher.Constraint("DistanceY", -1, 1, 0, 3, 14.8),
])
pocket19 = body.newObject("PartDesign::Pocket", "Pocket018")
pocket19.Profile = sketch20
pocket19.Length = 23
pocket19.Reversed = True

# Sketch on XZ plane
sketch21 = body.newObject("Sketcher::SketchObject", "Sketch020")
sketch21.AttachmentSupport = (doc.getObject("XZ_Plane"), [""])
sketch21.MapMode = "FlatFace"
sketch21.AttachmentOffset = App.Placement(App.Vector(0, 0, -20), App.Rotation())
sketch21.addGeometry(Part.Circle(App.Vector(15.2, 14.8, 0), App.Vector(0, 0, 1), 3), False)
sketch21.addConstraint([
    Sketcher.Constraint("Diameter", 0, 6.0),
    Sketcher.Constraint("DistanceX", -1, 1, 0, 3, 15.2),
    Sketcher.Constraint("DistanceY", -1, 1, 0, 3, 14.8),
])
pocket20 = body.newObject("PartDesign::Pocket", "Pocket019")
pocket20.Profile = sketch21
pocket20.Length = 10
pocket20.Reversed = True

# Sketch on XZ plane
sketch22 = body.newObject("Sketcher::SketchObject", "Sketch021")
sketch22.AttachmentSupport = (doc.getObject("XZ_Plane"), [""])
sketch22.MapMode = "FlatFace"
sketch22.AttachmentOffset = App.Placement(App.Vector(0, 0, 11), App.Rotation())
sketch22.addGeometry([
    Part.LineSegment(App.Vector(-1, 11.8, 0), App.Vector(-1, 17.8, 0)),
    Part.LineSegment(App.Vector(-1, 17.8, 0), App.Vector(1.8, 17.8, 0)),
    Part.LineSegment(App.Vector(1.8, 17.8, 0), App.Vector(1.8, 11.8, 0)),
    Part.LineSegment(App.Vector(1.8, 11.8, 0), App.Vector(-1, 11.8, 0)),
], False)
sketch22.addConstraint([
    Sketcher.Constraint("Coincident", 0, 2, 1, 1),
    Sketcher.Constraint("Coincident", 1, 2, 2, 1),
    Sketcher.Constraint("Coincident", 2, 2, 3, 1),
    Sketcher.Constraint("Coincident", 3, 2, 0, 1),
    Sketcher.Constraint("Vertical", 0),
    Sketcher.Constraint("Horizontal", 1),
    Sketcher.Constraint("Vertical", 2),
    Sketcher.Constraint("Horizontal", 3),
    Sketcher.Constraint("DistanceX", 1, 1, 1, 2, 2.8),
    Sketcher.Constraint("DistanceY", 0, 1, 0, 2, 5.9),
    Sketcher.Constraint("DistanceX", 0, 2, -1, 1, 1.0),
    Sketcher.Constraint("DistanceY", -1, 1, 0, 2, 17.75),
])
pocket21 = body.newObject("PartDesign::Pocket", "Pocket020")
pocket21.Profile = sketch22
pocket21.Length = 7.3
pocket21.Reversed = True

# Sketch on YZ plane
sketch23 = body.newObject("Sketcher::SketchObject", "Sketch022")
sketch23.AttachmentSupport = (doc.getObject("YZ_Plane"), [""])
sketch23.MapMode = "FlatFace"
sketch23.AttachmentOffset = App.Placement(App.Vector(0, 0, -11), App.Rotation())
sketch23.addGeometry([
    Part.LineSegment(App.Vector(1.8, 17.8, 0), App.Vector(-1, 17.8, 0)),  # 0
    Part.LineSegment(App.Vector(-1, 17.8, 0), App.Vector(-1, 11.8, 0)),  # 1
    Part.LineSegment(App.Vector(-1, 11.8, 0), App.Vector(1.8, 11.8, 0)),  # 2
    Part.LineSegment(App.Vector(1.8, 11.8, 0), App.Vector(1.8, 17.8, 0)),  # 3
    Part.LineSegment(App.Vector(1, 8.2, 0), App.Vector(-1.8, 8.2, 0)),  # 4
    Part.LineSegment(App.Vector(-1.8, 8.2, 0), App.Vector(-1.8, 2.2, 0)),  # 5
    Part.LineSegment(App.Vector(-1.8, 2.2, 0), App.Vector(1, 2.2, 0)),  # 6
    Part.LineSegment(App.Vector(1, 2.2, 0), App.Vector(1, 8.2, 0)),  # 7
], False)
sketch23.addConstraint([
    Sketcher.Constraint("Coincident", 0, 2, 1, 1),
    Sketcher.Constraint("Coincident", 1, 2, 2, 1),
    Sketcher.Constraint("Coincident", 2, 2, 3, 1),
    Sketcher.Constraint("Coincident", 3, 2, 0, 1),
    Sketcher.Constraint("Coincident", 4, 2, 5, 1),
    Sketcher.Constraint("Coincident", 5, 2, 6, 1),
    Sketcher.Constraint("Coincident", 6, 2, 7, 1),
    Sketcher.Constraint("Coincident", 7, 2, 4, 1),
    Sketcher.Constraint("Horizontal", 0),
    Sketcher.Constraint("Vertical", 1),
    Sketcher.Constraint("Horizontal", 2),
    Sketcher.Constraint("Vertical", 3),
    Sketcher.Constraint("Horizontal", 4),
    Sketcher.Constraint("Vertical", 5),
    Sketcher.Constraint("Horizontal", 6),
    Sketcher.Constraint("Vertical", 7),
    Sketcher.Constraint("Equal", 2, 4),
    Sketcher.Constraint("Equal", 3, 5),
    Sketcher.Constraint("DistanceX", 0, 2, 0, 1, 2.8),
    Sketcher.Constraint("DistanceY", 1, 2, 1, 1, 5.9),
    Sketcher.Constraint("DistanceX", 0, 2, -1, 1, 1.0),
    Sketcher.Constraint("DistanceX", -1, 1, 6, 2, 1.0),
    Sketcher.Constraint("DistanceY", 4, 2, 1, 2, 3.7),
    Sketcher.Constraint("DistanceY", -1, 1, 0, 2, 17.75),
])
pocket22 = body.newObject("PartDesign::Pocket", "Pocket021")
pocket22.Profile = sketch23
pocket22.Length = 7.3

# Sketch on YZ plane
sketch24 = body.newObject("Sketcher::SketchObject", "Sketch023")
sketch24.AttachmentSupport = (doc.getObject("YZ_Plane"), [""])
sketch24.MapMode = "FlatFace"
sketch24.AttachmentOffset = App.Placement(App.Vector(0, 0, 11), App.Rotation())
sketch24.addGeometry([
    Part.LineSegment(App.Vector(1.8, 2.2, 0), App.Vector(-1, 2.2, 0)),  # 0
    Part.LineSegment(App.Vector(-1, 2.2, 0), App.Vector(-1, 8.2, 0)),  # 1
    Part.LineSegment(App.Vector(-1, 8.2, 0), App.Vector(1.8, 8.2, 0)),  # 2
    Part.LineSegment(App.Vector(1.8, 8.2, 0), App.Vector(1.8, 2.2, 0)),  # 3
    Part.LineSegment(App.Vector(1, 11.8, 0), App.Vector(-1.8, 11.8, 0)),  # 4
    Part.LineSegment(App.Vector(-1.8, 11.8, 0), App.Vector(-1.8, 17.8, 0)),  # 5
    Part.LineSegment(App.Vector(-1.8, 17.8, 0), App.Vector(1, 17.8, 0)),  # 6
    Part.LineSegment(App.Vector(1, 17.8, 0), App.Vector(1, 11.8, 0)),  # 7
], False)
sketch24.addConstraint([
    Sketcher.Constraint("Coincident", 0, 2, 1, 1),
    Sketcher.Constraint("Coincident", 1, 2, 2, 1),
    Sketcher.Constraint("Coincident", 2, 2, 3, 1),
    Sketcher.Constraint("Coincident", 3, 2, 0, 1),
    Sketcher.Constraint("Coincident", 4, 2, 5, 1),
    Sketcher.Constraint("Coincident", 5, 2, 6, 1),
    Sketcher.Constraint("Coincident", 6, 2, 7, 1),
    Sketcher.Constraint("Coincident", 7, 2, 4, 1),
    Sketcher.Constraint("Horizontal", 0),
    Sketcher.Constraint("Vertical", 1),
    Sketcher.Constraint("Horizontal", 2),
    Sketcher.Constraint("Vertical", 3),
    Sketcher.Constraint("Horizontal", 4),
    Sketcher.Constraint("Vertical", 5),
    Sketcher.Constraint("Horizontal", 6),
    Sketcher.Constraint("Vertical", 7),
    Sketcher.Constraint("Equal", 2, 4),
    Sketcher.Constraint("Equal", 3, 5),
    Sketcher.Constraint("DistanceX", 0, 2, 0, 1, 2.8),
    Sketcher.Constraint("DistanceY", 1, 1, 1, 2, 5.9),
    Sketcher.Constraint("DistanceX", 0, 2, -1, 1, 1.0),
    Sketcher.Constraint("DistanceX", -1, 1, 6, 2, 1.0),
    Sketcher.Constraint("DistanceY", 1, 2, 4, 2, 3.7),
    Sketcher.Constraint("DistanceY", -1, 1, 0, 2, 2.25),
])
pocket23 = body.newObject("PartDesign::Pocket", "Pocket022")
pocket23.Profile = sketch24
pocket23.Length = 7.3
pocket23.Reversed = True

# Sketch on XZ plane
sketch25 = body.newObject("Sketcher::SketchObject", "Sketch024")
sketch25.AttachmentSupport = (doc.getObject("XZ_Plane"), [""])
sketch25.MapMode = "FlatFace"
sketch25.AttachmentOffset = App.Placement(App.Vector(0, 0, -11), App.Rotation())
sketch25.addGeometry([
    Part.LineSegment(App.Vector(-1, 8.2, 0), App.Vector(-1, 2.2, 0)),
    Part.LineSegment(App.Vector(-1, 2.2, 0), App.Vector(1.8, 2.2, 0)),
    Part.LineSegment(App.Vector(1.8, 2.2, 0), App.Vector(1.8, 8.2, 0)),
    Part.LineSegment(App.Vector(1.8, 8.2, 0), App.Vector(-1, 8.2, 0)),
], False)
sketch25.addConstraint([
    Sketcher.Constraint("Coincident", 0, 2, 1, 1),
    Sketcher.Constraint("Coincident", 1, 2, 2, 1),
    Sketcher.Constraint("Coincident", 2, 2, 3, 1),
    Sketcher.Constraint("Coincident", 3, 2, 0, 1),
    Sketcher.Constraint("Vertical", 0),
    Sketcher.Constraint("Horizontal", 1),
    Sketcher.Constraint("Vertical", 2),
    Sketcher.Constraint("Horizontal", 3),
    Sketcher.Constraint("DistanceX", 1, 1, 1, 2, 2.8),
    Sketcher.Constraint("DistanceY", 0, 2, 0, 1, 5.9),
    Sketcher.Constraint("DistanceX", 0, 2, -1, 1, 1.0),
    Sketcher.Constraint("DistanceY", -1, 1, 0, 2, 2.25),
])
pocket24 = body.newObject("PartDesign::Pocket", "Pocket023")
pocket24.Profile = sketch25
pocket24.Length = 7.3

# Sketch on XY plane
sketch26 = body.newObject("Sketcher::SketchObject", "Sketch025")
sketch26.AttachmentSupport = (doc.getObject("XY_Plane"), [""])
sketch26.MapMode = "FlatFace"
sketch26.AttachmentOffset = App.Placement(App.Vector(0, 0, 20), App.Rotation())
sketch26.addGeometry([
    Part.LineSegment(App.Vector(9.7, 17.8, 0), App.Vector(9.7, 11.8, 0)),
    Part.LineSegment(App.Vector(9.7, 11.8, 0), App.Vector(12.5, 11.8, 0)),
    Part.LineSegment(App.Vector(12.5, 11.8, 0), App.Vector(12.5, 17.8, 0)),
    Part.LineSegment(App.Vector(12.5, 17.8, 0), App.Vector(9.7, 17.8, 0)),
], False)
sketch26.addConstraint([
    Sketcher.Constraint("Coincident", 0, 2, 1, 1),
    Sketcher.Constraint("Coincident", 1, 2, 2, 1),
    Sketcher.Constraint("Coincident", 2, 2, 3, 1),
    Sketcher.Constraint("Coincident", 3, 2, 0, 1),
    Sketcher.Constraint("Vertical", 0),
    Sketcher.Constraint("Horizontal", 1),
    Sketcher.Constraint("Vertical", 2),
    Sketcher.Constraint("Horizontal", 3),
    Sketcher.Constraint("DistanceX", 1, 1, 1, 2, 2.8),
    Sketcher.Constraint("DistanceY", 0, 2, 0, 1, 5.9),
    Sketcher.Constraint("DistanceX", -1, 1, 0, 2, 9.7),
    Sketcher.Constraint("DistanceY", -1, 1, 0, 2, 11.85),
])
pocket25 = body.newObject("PartDesign::Pocket", "Pocket024")
pocket25.Profile = sketch26
pocket25.Length = 8.3

# Sketch on XY plane
sketch27 = body.newObject("Sketcher::SketchObject", "Sketch026")
sketch27.AttachmentSupport = (doc.getObject("XY_Plane"), [""])
sketch27.MapMode = "FlatFace"
sketch27.addGeometry([
    Part.LineSegment(App.Vector(12.5, -11.8, 0), App.Vector(12.5, -17.8, 0)),
    Part.LineSegment(App.Vector(12.5, -17.8, 0), App.Vector(9.7, -17.8, 0)),
    Part.LineSegment(App.Vector(9.7, -17.8, 0), App.Vector(9.7, -11.8, 0)),
    Part.LineSegment(App.Vector(9.7, -11.8, 0), App.Vector(12.5, -11.8, 0)),
], False)
sketch27.addConstraint([
    Sketcher.Constraint("Coincident", 0, 2, 1, 1),
    Sketcher.Constraint("Coincident", 1, 2, 2, 1),
    Sketcher.Constraint("Coincident", 2, 2, 3, 1),
    Sketcher.Constraint("Coincident", 3, 2, 0, 1),
    Sketcher.Constraint("Vertical", 0),
    Sketcher.Constraint("Horizontal", 1),
    Sketcher.Constraint("Vertical", 2),
    Sketcher.Constraint("Horizontal", 3),
    Sketcher.Constraint("DistanceX", 1, 2, 1, 1, 2.8),
    Sketcher.Constraint("DistanceY", 0, 2, 0, 1, 5.9),
    Sketcher.Constraint("DistanceX", -1, 1, 0, 2, 12.5),
    Sketcher.Constraint("DistanceY", 0, 2, -1, 1, 17.75),
])
pocket26 = body.newObject("PartDesign::Pocket", "Pocket025")
pocket26.Profile = sketch27
pocket26.Length = 8.3
pocket26.Reversed = True

# Sketch on YZ plane
sketch28 = body.newObject("Sketcher::SketchObject", "Sketch027")
sketch28.AttachmentSupport = (doc.getObject("YZ_Plane"), [""])
sketch28.MapMode = "FlatFace"
sketch28.AttachmentOffset = App.Placement(App.Vector(0, 0, 12.5), App.Rotation())
sketch28.addGeometry([
    Part.LineSegment(App.Vector(-14.8, 7.8, 0), App.Vector(-11.8, 6.5, 0)),  # 0
    Part.LineSegment(App.Vector(-11.8, 6.5, 0), App.Vector(-11.8, 3.9, 0)),  # 1
    Part.LineSegment(App.Vector(-11.8, 3.9, 0), App.Vector(-14.8, 2.6, 0)),  # 2
    Part.LineSegment(App.Vector(-14.8, 2.6, 0), App.Vector(-17.8, 3.9, 0)),  # 3
    Part.LineSegment(App.Vector(-17.8, 3.9, 0), App.Vector(-17.8, 6.5, 0)),  # 4
    Part.LineSegment(App.Vector(-17.8, 6.5, 0), App.Vector(-14.8, 7.8, 0)),  # 5
    Part.LineSegment(App.Vector(17.8, 13.5, 0), App.Vector(14.8, 12.2, 0)),  # 6
    Part.LineSegment(App.Vector(14.8, 12.2, 0), App.Vector(11.8, 13.5, 0)),  # 7
    Part.LineSegment(App.Vector(11.8, 13.5, 0), App.Vector(11.8, 16.1, 0)),  # 8
    Part.LineSegment(App.Vector(11.8, 16.1, 0), App.Vector(14.8, 17.4, 0)),  # 9
    Part.LineSegment(App.Vector(14.8, 17.4, 0), App.Vector(17.8, 16.1, 0)),  # 10
    Part.LineSegment(App.Vector(17.8, 16.1, 0), App.Vector(17.8, 13.5, 0)),  # 11
], False)
sketch28.addConstraint([
    Sketcher.Constraint("Coincident", 0, 2, 1, 1),
    Sketcher.Constraint("Coincident", 1, 2, 2, 1),
    Sketcher.Constraint("Coincident", 2, 2, 3, 1),
    Sketcher.Constraint("Coincident", 3, 2, 4, 1),
    Sketcher.Constraint("Coincident", 4, 2, 5, 1),
    Sketcher.Constraint("Coincident", 5, 2, 0, 1),
    Sketcher.Constraint("Coincident", 6, 2, 7, 1),
    Sketcher.Constraint("Coincident", 7, 2, 8, 1),
    Sketcher.Constraint("Coincident", 8, 2, 9, 1),
    Sketcher.Constraint("Coincident", 9, 2, 10, 1),
    Sketcher.Constraint("Coincident", 10, 2, 11, 1),
    Sketcher.Constraint("Coincident", 11, 2, 6, 1),
    Sketcher.Constraint("Vertical", 1),
    Sketcher.Constraint("Vertical", 4),
    Sketcher.Constraint("Vertical", 8),
    Sketcher.Constraint("Vertical", 11),
    Sketcher.Constraint("Parallel", 0, 3),
    Sketcher.Constraint("Parallel", 2, 5),
    Sketcher.Constraint("Parallel", 5, 6),
    Sketcher.Constraint("Parallel", 3, 7),
    Sketcher.Constraint("Parallel", 6, 9),
    Sketcher.Constraint("Parallel", 7, 10),
    Sketcher.Constraint("Horizontal", 1, 2, 3, 2),
    Sketcher.Constraint("Horizontal", 0, 2, 4, 2),
    Sketcher.Constraint("Horizontal", 8, 2, 10, 2),
    Sketcher.Constraint("Horizontal", 7, 2, 11, 2),
    Sketcher.Constraint("Vertical", 2, 2, 5, 2),
    Sketcher.Constraint("Equal", 4, 8),
    Sketcher.Constraint("Equal", 5, 6),
    Sketcher.Constraint("DistanceX", 2, 2, -1, 1, 14.8),
    Sketcher.Constraint("DistanceY", -1, 1, 2, 2, 2.6),
    Sketcher.Constraint("DistanceY", -1, 1, 5, 2, 7.8),
    Sketcher.Constraint("DistanceX", -1, 1, 6, 2, 14.8),
    Sketcher.Constraint("DistanceY", -1, 1, 6, 2, 12.2),
    Sketcher.Constraint("DistanceX", 3, 2, 1, 2, 5.9),
    Sketcher.Constraint("DistanceY", 1, 2, 1, 1, 2.615339),
])
pocket27 = body.newObject("PartDesign::Pocket", "Pocket026")
pocket27.Profile = sketch28
pocket27.Length = 3
pocket27.Reversed = True

doc.recompute()
